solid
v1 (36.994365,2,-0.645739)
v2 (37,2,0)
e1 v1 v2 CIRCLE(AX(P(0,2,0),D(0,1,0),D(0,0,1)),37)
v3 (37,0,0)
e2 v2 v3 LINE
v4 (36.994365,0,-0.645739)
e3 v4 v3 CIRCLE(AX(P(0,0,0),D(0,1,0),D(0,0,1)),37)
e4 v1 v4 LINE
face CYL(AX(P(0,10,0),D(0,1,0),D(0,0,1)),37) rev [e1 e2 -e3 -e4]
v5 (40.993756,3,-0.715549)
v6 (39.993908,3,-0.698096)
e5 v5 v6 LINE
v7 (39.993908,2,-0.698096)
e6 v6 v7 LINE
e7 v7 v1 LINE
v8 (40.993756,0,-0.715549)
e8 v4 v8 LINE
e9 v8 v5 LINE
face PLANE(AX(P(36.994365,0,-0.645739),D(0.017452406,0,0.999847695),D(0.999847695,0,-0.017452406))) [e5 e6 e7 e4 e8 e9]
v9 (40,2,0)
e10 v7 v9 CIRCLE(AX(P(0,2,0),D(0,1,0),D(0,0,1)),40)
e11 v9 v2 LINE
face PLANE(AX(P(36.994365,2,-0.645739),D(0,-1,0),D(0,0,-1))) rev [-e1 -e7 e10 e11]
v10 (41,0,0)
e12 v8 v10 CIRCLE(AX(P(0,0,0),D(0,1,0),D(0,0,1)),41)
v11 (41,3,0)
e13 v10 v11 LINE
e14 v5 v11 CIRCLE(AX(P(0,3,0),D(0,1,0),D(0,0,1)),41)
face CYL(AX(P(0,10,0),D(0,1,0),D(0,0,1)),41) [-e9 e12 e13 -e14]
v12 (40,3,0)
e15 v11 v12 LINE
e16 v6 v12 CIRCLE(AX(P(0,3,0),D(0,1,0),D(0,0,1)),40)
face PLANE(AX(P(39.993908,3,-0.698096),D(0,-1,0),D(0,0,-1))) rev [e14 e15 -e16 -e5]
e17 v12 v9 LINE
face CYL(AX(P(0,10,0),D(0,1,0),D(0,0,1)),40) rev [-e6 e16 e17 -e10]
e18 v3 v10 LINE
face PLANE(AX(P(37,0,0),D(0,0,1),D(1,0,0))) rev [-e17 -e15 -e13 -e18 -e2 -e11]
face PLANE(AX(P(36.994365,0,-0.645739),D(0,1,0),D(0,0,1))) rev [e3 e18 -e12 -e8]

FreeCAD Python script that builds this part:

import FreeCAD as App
import Part
import Sketcher


def add_polygon(sketch, points):
    """Adds a closed chain of lines whose ends are joined by coincident constraints."""
    first, n = sketch.GeometryCount, len(points)
    for a, b in zip(points, points[1:] + points[:1]):
        sketch.addGeometry(Part.LineSegment(App.Vector(*a, 0), App.Vector(*b, 0)), False)
    for i in range(n):
        sketch.addConstraint(Sketcher.Constraint("Coincident", first + i, 2, first + (i + 1) % n, 1))

doc = App.newDocument("Part")
body = doc.addObject("PartDesign::Body", "Body")

# Sketch on XY plane
sketch1 = doc.addObject("Sketcher::SketchObject", "Sketch")
body.addObject(sketch1)
sketch1.AttachmentSupport = (doc.XY_Plane, [""])
sketch1.MapMode = "FlatFace"
add_polygon(sketch1, [(41, 3), (40, 3), (40, 2), (37, 2), (37, 0), (41, 0)])  # lines 0-5
sketch1.addConstraint([
    Sketcher.Constraint("Horizontal", 0),
    Sketcher.Constraint("Vertical", 1),
    Sketcher.Constraint("Horizontal", 2),
    Sketcher.Constraint("Vertical", 3),
    Sketcher.Constraint("Horizontal", 4),
    Sketcher.Constraint("Vertical", 5),
    Sketcher.Constraint("PointOnObject", 3, 2, -1),
    Sketcher.Constraint("Equal", 0, 1),
    Sketcher.Constraint("Equal", 2, 5),
    Sketcher.Constraint("DistanceX", 0, 2, 0, 1, 1.0),
    Sketcher.Constraint("DistanceX", 2, 2, 2, 1, 3.0),
    Sketcher.Constraint("DistanceX", -1, 1, 0, 2, 40.0),
])
revolution = doc.addObject("PartDesign::Revolution", "Revolution")
body.addObject(revolution)
revolution.Profile = sketch1
revolution.ReferenceAxis = (sketch1, ["V_Axis"])
revolution.Angle = 359
revolution.Reversed = True

doc.recompute()
